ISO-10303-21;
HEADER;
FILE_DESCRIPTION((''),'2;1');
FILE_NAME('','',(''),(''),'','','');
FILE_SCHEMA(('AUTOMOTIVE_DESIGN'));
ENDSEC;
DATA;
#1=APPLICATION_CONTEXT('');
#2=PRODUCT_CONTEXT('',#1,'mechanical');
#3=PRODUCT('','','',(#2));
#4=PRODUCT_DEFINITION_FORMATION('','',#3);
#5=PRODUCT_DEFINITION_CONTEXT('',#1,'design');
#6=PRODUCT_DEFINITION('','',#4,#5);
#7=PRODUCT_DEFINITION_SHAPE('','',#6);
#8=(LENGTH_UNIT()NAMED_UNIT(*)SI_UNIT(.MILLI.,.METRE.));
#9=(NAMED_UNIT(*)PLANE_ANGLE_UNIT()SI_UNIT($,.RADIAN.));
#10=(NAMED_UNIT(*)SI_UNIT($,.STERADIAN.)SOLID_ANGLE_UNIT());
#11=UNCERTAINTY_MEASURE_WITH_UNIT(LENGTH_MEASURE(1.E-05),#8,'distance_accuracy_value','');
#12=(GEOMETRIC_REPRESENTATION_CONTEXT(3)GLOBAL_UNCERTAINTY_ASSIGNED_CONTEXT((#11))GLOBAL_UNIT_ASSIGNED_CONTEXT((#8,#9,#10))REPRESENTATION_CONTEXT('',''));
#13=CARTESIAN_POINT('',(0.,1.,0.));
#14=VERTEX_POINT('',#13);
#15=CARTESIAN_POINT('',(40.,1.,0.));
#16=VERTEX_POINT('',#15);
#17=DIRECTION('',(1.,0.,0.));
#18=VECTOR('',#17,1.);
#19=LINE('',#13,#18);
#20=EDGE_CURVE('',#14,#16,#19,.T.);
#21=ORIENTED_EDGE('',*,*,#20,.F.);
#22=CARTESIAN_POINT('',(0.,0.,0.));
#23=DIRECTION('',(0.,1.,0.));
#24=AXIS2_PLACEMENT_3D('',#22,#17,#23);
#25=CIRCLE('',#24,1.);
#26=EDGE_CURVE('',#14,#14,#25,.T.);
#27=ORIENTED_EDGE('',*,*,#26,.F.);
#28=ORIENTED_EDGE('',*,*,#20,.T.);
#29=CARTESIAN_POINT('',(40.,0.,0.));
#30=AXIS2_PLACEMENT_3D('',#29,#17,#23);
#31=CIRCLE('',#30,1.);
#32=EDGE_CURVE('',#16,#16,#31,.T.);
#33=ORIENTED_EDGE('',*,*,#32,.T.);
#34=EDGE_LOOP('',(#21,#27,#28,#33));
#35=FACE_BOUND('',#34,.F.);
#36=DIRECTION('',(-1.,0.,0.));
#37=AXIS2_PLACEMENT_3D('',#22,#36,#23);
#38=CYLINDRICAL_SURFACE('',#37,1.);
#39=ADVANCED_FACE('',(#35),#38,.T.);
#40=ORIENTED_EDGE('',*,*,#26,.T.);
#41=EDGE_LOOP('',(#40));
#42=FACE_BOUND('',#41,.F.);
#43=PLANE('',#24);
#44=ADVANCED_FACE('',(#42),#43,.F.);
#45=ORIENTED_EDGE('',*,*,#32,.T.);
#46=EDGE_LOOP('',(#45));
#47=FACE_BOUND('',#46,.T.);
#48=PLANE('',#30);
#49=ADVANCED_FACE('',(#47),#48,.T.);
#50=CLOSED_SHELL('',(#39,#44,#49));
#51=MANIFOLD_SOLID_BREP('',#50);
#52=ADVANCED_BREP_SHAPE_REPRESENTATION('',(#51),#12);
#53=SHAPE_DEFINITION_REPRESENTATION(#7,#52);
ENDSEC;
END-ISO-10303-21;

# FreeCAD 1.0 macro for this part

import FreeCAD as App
import Part
import Sketcher

V = App.Vector
Q = App.Units.Quantity

doc = App.newDocument("Part")
body = doc.addObject("PartDesign::Body", "Body")

# Sketch on YZ plane
sketch1 = doc.addObject("Sketcher::SketchObject", "Sketch")
body.addObject(sketch1)
sketch1.AttachmentSupport = (doc.YZ_Plane, [""])
sketch1.MapMode = "FlatFace"
sketch1.addGeometry(Part.Circle(V(0, 0, 0), V(0, 0, 1), 1), False)
sketch1.addConstraint([
    Sketcher.Constraint("Coincident", 0, 3, -1, 1),
    Sketcher.Constraint("Diameter", 0, Q("2 mm")),
])
pad1 = doc.addObject("PartDesign::Pad", "Pad")
body.addObject(pad1)
pad1.Profile = sketch1
pad1.Length = 40

doc.recompute()
